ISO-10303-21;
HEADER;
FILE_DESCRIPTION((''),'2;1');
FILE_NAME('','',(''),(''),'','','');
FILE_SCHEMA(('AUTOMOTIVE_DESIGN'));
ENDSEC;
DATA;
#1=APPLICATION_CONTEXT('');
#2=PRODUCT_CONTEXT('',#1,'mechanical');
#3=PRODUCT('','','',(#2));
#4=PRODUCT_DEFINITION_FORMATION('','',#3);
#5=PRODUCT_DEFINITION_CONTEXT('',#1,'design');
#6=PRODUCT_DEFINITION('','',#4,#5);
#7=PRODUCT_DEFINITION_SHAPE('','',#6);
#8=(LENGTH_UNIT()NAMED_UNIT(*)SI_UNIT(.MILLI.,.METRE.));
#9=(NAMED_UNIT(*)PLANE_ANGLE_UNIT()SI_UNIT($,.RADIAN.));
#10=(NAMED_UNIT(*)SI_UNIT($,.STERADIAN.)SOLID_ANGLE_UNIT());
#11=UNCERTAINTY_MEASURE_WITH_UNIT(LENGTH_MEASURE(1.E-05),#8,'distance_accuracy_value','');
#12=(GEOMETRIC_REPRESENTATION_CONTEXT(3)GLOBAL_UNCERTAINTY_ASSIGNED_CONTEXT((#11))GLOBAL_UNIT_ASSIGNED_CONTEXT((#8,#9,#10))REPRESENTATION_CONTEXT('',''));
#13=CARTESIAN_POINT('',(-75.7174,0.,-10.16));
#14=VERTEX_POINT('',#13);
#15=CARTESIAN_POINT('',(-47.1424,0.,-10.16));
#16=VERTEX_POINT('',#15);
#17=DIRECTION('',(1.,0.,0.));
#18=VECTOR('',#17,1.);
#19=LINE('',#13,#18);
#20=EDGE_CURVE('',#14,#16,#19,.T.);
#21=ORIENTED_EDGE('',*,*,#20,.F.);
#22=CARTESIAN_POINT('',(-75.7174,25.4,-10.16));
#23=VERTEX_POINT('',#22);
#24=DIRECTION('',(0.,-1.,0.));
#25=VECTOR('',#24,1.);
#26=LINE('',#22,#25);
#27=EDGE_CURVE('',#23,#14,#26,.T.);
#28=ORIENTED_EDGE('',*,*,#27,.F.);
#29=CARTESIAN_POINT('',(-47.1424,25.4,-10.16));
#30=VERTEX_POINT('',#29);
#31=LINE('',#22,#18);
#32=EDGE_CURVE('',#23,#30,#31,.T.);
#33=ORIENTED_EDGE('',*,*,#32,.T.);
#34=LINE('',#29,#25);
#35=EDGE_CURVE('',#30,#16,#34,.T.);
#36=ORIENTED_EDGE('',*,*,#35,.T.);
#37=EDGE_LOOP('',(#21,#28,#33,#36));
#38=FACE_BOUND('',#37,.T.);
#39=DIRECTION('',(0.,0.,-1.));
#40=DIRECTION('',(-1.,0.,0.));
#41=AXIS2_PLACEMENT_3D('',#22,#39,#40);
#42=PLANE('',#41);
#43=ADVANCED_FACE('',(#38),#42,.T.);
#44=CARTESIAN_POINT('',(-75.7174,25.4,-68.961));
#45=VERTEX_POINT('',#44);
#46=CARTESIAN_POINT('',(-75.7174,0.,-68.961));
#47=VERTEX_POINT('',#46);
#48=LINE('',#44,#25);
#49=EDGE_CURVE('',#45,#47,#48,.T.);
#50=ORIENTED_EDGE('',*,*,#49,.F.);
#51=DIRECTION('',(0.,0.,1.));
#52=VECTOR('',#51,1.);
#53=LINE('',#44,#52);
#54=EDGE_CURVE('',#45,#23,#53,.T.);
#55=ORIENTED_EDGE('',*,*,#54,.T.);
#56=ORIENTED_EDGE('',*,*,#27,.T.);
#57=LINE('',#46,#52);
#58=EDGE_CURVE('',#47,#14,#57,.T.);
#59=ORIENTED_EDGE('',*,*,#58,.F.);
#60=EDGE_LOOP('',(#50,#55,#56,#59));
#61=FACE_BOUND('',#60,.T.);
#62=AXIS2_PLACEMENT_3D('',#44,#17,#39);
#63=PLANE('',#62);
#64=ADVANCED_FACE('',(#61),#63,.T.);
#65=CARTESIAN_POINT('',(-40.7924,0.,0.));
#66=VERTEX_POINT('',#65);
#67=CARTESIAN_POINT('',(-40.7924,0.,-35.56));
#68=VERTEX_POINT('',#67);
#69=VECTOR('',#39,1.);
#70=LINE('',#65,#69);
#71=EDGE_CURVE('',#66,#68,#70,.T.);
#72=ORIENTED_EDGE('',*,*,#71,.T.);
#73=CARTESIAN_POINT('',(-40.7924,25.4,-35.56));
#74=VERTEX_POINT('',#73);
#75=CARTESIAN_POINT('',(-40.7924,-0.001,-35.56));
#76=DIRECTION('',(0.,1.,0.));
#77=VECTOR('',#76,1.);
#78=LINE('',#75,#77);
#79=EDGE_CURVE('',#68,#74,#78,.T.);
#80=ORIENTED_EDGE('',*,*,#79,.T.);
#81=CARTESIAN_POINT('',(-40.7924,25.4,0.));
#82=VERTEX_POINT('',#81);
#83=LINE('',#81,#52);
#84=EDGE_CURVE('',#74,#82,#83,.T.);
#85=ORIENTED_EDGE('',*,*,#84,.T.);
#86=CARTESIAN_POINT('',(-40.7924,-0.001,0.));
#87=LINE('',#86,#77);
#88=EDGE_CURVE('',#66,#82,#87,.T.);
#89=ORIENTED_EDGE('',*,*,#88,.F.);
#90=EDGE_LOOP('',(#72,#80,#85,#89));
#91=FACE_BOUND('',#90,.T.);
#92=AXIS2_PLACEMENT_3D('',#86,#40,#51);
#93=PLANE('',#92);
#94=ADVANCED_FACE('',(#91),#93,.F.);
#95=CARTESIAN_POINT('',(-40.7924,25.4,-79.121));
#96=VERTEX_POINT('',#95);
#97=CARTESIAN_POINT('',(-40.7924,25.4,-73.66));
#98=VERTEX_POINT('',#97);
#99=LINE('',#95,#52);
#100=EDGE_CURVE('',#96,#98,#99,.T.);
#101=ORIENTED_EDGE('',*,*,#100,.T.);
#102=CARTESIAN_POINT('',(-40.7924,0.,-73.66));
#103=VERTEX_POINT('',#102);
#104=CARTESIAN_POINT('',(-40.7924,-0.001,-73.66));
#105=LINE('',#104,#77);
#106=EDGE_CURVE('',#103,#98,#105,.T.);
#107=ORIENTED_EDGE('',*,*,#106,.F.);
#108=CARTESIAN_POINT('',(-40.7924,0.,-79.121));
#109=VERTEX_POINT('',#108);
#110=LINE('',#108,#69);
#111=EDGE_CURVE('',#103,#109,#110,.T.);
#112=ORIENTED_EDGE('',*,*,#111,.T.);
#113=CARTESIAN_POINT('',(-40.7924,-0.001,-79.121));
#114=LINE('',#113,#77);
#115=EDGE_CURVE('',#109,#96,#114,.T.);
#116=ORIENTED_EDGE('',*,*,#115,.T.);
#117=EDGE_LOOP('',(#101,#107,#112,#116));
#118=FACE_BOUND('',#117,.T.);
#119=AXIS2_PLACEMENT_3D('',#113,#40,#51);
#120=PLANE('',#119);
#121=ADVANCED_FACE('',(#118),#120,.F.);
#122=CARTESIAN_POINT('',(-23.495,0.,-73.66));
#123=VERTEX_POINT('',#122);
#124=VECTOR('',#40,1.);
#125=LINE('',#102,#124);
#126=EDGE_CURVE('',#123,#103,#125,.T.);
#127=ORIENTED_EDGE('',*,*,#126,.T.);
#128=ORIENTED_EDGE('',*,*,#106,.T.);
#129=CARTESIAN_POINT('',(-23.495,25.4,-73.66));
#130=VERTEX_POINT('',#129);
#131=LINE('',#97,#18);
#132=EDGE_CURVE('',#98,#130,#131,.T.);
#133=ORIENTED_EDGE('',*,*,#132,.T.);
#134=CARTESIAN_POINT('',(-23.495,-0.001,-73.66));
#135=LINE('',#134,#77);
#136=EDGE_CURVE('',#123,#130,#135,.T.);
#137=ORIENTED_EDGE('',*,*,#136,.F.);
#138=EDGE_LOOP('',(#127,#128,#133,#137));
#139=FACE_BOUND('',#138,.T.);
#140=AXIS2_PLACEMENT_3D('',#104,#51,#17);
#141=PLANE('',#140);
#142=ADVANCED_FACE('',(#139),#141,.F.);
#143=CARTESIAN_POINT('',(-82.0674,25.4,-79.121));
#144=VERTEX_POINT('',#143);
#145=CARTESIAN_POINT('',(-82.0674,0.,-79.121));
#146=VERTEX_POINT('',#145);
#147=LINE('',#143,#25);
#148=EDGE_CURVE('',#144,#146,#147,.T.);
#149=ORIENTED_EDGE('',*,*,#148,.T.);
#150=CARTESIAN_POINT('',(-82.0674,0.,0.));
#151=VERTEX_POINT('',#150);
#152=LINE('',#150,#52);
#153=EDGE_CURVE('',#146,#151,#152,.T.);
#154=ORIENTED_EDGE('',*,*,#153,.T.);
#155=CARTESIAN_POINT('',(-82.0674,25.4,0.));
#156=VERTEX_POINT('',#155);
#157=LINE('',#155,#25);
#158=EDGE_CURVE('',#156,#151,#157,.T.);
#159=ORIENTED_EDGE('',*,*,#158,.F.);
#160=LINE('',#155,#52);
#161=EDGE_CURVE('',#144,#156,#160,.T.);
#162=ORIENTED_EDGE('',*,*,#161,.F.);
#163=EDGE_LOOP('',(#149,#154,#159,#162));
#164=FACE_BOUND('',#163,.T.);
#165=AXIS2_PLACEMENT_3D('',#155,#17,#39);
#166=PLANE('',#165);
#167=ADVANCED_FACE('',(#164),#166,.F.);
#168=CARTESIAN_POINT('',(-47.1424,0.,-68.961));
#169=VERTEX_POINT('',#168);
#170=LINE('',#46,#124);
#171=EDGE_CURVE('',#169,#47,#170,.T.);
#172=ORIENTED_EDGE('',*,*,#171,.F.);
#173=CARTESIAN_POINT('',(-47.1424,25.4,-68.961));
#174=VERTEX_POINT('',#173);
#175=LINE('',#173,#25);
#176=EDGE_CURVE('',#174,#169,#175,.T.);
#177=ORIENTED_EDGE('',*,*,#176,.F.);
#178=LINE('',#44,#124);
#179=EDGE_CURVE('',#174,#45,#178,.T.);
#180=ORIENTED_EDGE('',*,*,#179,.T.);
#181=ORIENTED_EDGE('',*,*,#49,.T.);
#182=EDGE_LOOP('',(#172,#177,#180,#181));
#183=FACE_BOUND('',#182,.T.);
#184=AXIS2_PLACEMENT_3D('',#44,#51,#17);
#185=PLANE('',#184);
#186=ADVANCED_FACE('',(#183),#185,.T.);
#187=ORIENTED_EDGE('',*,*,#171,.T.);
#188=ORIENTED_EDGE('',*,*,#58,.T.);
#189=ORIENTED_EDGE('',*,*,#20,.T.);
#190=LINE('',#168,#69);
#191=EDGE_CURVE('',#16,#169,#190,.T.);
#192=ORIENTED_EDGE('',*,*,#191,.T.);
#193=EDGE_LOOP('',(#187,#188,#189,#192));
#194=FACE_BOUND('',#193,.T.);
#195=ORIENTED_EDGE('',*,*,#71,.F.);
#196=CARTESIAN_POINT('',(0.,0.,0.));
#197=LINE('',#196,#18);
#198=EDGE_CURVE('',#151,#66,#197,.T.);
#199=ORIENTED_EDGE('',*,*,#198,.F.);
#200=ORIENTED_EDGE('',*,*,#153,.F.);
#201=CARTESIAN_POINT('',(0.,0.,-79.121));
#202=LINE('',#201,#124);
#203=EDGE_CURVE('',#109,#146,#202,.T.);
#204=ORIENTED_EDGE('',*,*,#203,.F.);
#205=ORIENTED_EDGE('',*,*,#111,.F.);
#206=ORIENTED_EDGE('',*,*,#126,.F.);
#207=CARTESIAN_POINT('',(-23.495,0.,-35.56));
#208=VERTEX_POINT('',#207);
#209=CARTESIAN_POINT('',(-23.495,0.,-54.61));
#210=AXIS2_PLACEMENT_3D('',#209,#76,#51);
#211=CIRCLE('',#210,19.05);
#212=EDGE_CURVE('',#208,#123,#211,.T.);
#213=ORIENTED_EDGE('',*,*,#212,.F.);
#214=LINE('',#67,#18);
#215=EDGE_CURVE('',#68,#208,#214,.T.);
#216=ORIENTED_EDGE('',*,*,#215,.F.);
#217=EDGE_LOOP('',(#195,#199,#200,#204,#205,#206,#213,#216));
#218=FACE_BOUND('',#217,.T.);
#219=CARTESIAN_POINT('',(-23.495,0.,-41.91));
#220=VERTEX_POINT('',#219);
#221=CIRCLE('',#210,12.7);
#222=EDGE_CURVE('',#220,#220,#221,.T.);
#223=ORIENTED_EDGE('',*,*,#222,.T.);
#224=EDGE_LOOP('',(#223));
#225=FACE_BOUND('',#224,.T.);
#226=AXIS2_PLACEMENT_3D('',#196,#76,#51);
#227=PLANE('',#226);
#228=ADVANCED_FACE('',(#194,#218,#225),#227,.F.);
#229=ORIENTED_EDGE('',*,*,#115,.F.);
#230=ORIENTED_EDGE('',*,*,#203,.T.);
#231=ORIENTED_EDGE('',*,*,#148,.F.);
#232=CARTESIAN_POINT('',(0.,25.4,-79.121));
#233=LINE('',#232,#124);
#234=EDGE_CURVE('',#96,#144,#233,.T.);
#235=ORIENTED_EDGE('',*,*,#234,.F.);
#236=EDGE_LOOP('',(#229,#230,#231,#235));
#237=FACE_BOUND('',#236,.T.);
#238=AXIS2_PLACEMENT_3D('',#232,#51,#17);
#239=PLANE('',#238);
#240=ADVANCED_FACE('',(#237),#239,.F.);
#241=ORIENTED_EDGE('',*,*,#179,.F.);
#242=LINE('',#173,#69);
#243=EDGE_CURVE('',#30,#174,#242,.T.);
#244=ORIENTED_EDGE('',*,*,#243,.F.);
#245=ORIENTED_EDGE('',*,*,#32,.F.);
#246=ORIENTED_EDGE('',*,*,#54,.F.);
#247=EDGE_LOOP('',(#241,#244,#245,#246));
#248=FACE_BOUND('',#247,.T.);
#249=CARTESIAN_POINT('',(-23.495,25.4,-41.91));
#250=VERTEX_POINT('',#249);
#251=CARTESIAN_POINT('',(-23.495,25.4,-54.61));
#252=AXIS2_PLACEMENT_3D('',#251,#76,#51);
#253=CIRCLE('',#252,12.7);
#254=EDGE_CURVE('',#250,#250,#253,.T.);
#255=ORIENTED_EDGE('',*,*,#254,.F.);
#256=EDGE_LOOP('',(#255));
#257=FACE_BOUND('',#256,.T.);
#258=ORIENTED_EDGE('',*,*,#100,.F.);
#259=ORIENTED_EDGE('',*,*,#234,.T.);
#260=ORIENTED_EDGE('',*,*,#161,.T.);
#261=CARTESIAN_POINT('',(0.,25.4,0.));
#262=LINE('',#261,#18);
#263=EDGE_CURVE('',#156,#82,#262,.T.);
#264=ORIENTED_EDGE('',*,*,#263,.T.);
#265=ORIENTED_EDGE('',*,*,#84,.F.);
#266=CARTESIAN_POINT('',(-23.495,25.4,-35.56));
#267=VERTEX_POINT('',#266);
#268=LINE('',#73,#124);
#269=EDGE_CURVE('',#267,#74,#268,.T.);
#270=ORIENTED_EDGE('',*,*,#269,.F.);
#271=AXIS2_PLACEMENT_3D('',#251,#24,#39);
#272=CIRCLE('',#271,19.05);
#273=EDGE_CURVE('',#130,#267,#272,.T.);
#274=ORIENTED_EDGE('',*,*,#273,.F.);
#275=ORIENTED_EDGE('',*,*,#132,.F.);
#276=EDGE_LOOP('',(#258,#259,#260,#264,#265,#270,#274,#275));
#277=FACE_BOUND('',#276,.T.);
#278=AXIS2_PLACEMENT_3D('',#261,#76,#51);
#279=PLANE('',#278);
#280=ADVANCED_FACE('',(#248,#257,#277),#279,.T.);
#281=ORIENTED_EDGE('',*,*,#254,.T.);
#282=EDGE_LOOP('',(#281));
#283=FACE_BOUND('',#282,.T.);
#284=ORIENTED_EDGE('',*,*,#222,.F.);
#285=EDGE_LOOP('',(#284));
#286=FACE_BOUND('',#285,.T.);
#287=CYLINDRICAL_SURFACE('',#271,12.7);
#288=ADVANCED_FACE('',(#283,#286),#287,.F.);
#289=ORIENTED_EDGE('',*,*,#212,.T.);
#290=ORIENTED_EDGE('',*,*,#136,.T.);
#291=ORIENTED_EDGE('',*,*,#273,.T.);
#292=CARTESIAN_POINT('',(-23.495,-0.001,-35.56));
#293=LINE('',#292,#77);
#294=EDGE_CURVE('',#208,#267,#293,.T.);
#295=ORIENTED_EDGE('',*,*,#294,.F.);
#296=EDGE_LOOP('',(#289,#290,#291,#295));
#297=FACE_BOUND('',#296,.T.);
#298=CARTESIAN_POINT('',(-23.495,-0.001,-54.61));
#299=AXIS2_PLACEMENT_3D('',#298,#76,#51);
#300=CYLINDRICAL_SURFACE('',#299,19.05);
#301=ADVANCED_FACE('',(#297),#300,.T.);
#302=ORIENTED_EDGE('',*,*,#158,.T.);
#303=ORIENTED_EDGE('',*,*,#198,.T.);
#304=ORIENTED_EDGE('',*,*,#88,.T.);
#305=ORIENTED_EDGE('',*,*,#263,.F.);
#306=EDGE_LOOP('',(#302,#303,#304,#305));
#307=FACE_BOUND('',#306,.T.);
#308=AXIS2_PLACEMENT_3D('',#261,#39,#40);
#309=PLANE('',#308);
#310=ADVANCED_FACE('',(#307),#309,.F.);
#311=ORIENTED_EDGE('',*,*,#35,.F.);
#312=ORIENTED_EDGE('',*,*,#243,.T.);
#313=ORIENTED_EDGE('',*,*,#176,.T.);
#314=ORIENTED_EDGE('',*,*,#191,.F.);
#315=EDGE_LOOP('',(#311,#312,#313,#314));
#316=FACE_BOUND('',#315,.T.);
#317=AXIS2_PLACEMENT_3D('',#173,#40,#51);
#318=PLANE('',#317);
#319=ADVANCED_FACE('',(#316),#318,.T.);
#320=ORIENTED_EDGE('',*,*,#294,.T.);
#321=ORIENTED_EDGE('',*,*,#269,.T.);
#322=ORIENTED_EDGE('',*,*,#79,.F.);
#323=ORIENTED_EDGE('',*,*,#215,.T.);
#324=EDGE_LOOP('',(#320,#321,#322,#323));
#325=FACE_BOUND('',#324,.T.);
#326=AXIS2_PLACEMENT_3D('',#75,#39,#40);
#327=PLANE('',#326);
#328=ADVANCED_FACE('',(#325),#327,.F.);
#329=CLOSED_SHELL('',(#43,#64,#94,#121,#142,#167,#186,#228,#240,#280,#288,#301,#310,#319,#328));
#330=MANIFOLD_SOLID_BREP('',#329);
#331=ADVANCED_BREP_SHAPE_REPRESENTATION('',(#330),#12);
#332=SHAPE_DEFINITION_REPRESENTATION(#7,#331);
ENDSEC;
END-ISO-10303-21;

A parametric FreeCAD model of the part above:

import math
import FreeCAD as App
import Part
import Sketcher
Q = App.Units.Quantity


def add_polygon(sketch, points):
    """Adds a closed chain of lines whose ends are joined by coincident constraints."""
    first, n = sketch.GeometryCount, len(points)
    for a, b in zip(points, points[1:] + points[:1]):
        sketch.addGeometry(Part.LineSegment(App.Vector(*a, 0), App.Vector(*b, 0)), False)
    for i in range(n):
        sketch.addConstraint(Sketcher.Constraint("Coincident", first + i, 2, first + (i + 1) % n, 1))

doc = App.newDocument("Part")
body = doc.addObject("PartDesign::Body", "Body")

# Sketch on XZ plane
sketch1 = doc.addObject("Sketcher::SketchObject", "Sketch")
body.addObject(sketch1)
sketch1.AttachmentSupport = (doc.XZ_Plane, [""])
sketch1.MapMode = "FlatFace"
add_polygon(sketch1, [(-82, -79), (-82, 0), (0, 0), (0, -79)])  # lines 0-3
add_polygon(sketch1, [(-47, -10), (-76, -10), (-76, -69), (-47, -69)])  # lines 4-7
sketch1.addGeometry(Part.Circle(App.Vector(-23, -55, 0), App.Vector(0, 0, 1), 13), False)  # 8
sketch1.addConstraint(Sketcher.Constraint("Vertical", 0))
sketch1.addConstraint(Sketcher.Constraint("Horizontal", 1))
sketch1.addConstraint(Sketcher.Constraint("Vertical", 2))
sketch1.addConstraint(Sketcher.Constraint("Horizontal", 3))
sketch1.addConstraint(Sketcher.Constraint("Horizontal", 4))
sketch1.addConstraint(Sketcher.Constraint("Vertical", 5))
sketch1.addConstraint(Sketcher.Constraint("Horizontal", 6))
sketch1.addConstraint(Sketcher.Constraint("Vertical", 7))
sketch1.addConstraint(Sketcher.Constraint("Coincident", 1, 2, -1, 1))
sketch1.addConstraint(Sketcher.Constraint("Diameter", 8, Q("1 in")))
sketch1.addConstraint(Sketcher.Constraint("DistanceY", 4, 2, -1, 1, Q("0.4 in")))
sketch1.addConstraint(Sketcher.Constraint("DistanceY", 3, 2, 5, 2, Q("0.4 in")))
sketch1.addConstraint(Sketcher.Constraint("DistanceX", 1, 1, 1, 2, Q("3.231 in")))
sketch1.addConstraint(Sketcher.Constraint("DistanceX", 4, 2, 4, 1, Q("1.125 in")))
sketch1.addConstraint(Sketcher.Constraint("DistanceY", 0, 1, 0, 2, Q("3.115 in")))
sketch1.addConstraint(Sketcher.Constraint("DistanceY", 8, 3, -1, 1, Q("2.15 in")))
sketch1.addConstraint(Sketcher.Constraint("DistanceX", 0, 2, 4, 2, Q("0.25 in")))
sketch1.addConstraint(Sketcher.Constraint("DistanceX", 8, 3, -1, 1, Q("0.925 in")))
pad1 = doc.addObject("PartDesign::Pad", "Pad")
body.addObject(pad1)
pad1.Profile = sketch1
pad1.Length = Q("1 in")
pad1.Reversed = True

# Sketch on XZ plane
sketch2 = doc.addObject("Sketcher::SketchObject", "Sketch001")
body.addObject(sketch2)
sketch2.AttachmentSupport = (doc.XZ_Plane, [""])
sketch2.MapMode = "FlatFace"
sketch2.AttachmentOffset = App.Placement(App.Vector(0, 0, -1 * 25.4), App.Rotation())
sketch2.addGeometry(Part.LineSegment(App.Vector(-41, -36, 0), App.Vector(-41, 0, 0)), False)
sketch2.addGeometry(Part.LineSegment(App.Vector(-41, 0, 0), App.Vector(0, 0, 0)), False)
sketch2.addGeometry(Part.LineSegment(App.Vector(0, 0, 0), App.Vector(0, -79, 0)), False)
sketch2.addGeometry(Part.LineSegment(App.Vector(0, -79, 0), App.Vector(-41, -79, 0)), False)
sketch2.addGeometry(Part.LineSegment(App.Vector(-41, -79, 0), App.Vector(-41, -74, 0)), False)
sketch2.addGeometry(Part.LineSegment(App.Vector(-41, -74, 0), App.Vector(-23, -74, 0)), False)
sketch2.addGeometry(Part.ArcOfCircle(Part.Circle(App.Vector(-23, -55, 0), App.Vector(0, 0, 1), 19), math.radians(-90), math.radians(90)), False)
sketch2.addGeometry(Part.LineSegment(App.Vector(-23, -36, 0), App.Vector(-41, -36, 0)), False)
sketch2.addConstraint(Sketcher.Constraint("Coincident", 0, 2, 1, 1))
sketch2.addConstraint(Sketcher.Constraint("Coincident", 1, 2, 2, 1))
sketch2.addConstraint(Sketcher.Constraint("Coincident", 2, 2, 3, 1))
sketch2.addConstraint(Sketcher.Constraint("Coincident", 3, 2, 4, 1))
sketch2.addConstraint(Sketcher.Constraint("Coincident", 4, 2, 5, 1))
sketch2.addConstraint(Sketcher.Constraint("Tangent", 5, 2, 6, 1))
sketch2.addConstraint(Sketcher.Constraint("Tangent", 6, 2, 7, 1))
sketch2.addConstraint(Sketcher.Constraint("Coincident", 7, 2, 0, 1))
sketch2.addConstraint(Sketcher.Constraint("Vertical", 0))
sketch2.addConstraint(Sketcher.Constraint("Horizontal", 1))
sketch2.addConstraint(Sketcher.Constraint("Vertical", 2))
sketch2.addConstraint(Sketcher.Constraint("Horizontal", 3))
sketch2.addConstraint(Sketcher.Constraint("Vertical", 4))
sketch2.addConstraint(Sketcher.Constraint("Horizontal", 5))
sketch2.addConstraint(Sketcher.Constraint("Horizontal", 7))
sketch2.addConstraint(Sketcher.Constraint("Coincident", 1, 2, -1, 1))
sketch2.addConstraint(Sketcher.Constraint("Vertical", 0, 2, 3, 2))
sketch2.addConstraint(Sketcher.Constraint("Radius", 6, Q("0.75 in")))
sketch2.addConstraint(Sketcher.Constraint("DistanceY", 0, 1, 0, 2, Q("1.4 in")))
sketch2.addConstraint(Sketcher.Constraint("DistanceX", 1, 1, 1, 2, Q("1.606 in")))
sketch2.addConstraint(Sketcher.Constraint("DistanceX", 5, 1, 5, 2, Q("0.681 in")))
sketch2.addConstraint(Sketcher.Constraint("DistanceY", 2, 2, 2, 1, Q("3.115 in")))
pocket1 = doc.addObject("PartDesign::Pocket", "Pocket")
body.addObject(pocket1)
pocket1.Profile = sketch2
pocket1.Type = "UpToFirst"
pocket1.Reversed = True

doc.recompute()
